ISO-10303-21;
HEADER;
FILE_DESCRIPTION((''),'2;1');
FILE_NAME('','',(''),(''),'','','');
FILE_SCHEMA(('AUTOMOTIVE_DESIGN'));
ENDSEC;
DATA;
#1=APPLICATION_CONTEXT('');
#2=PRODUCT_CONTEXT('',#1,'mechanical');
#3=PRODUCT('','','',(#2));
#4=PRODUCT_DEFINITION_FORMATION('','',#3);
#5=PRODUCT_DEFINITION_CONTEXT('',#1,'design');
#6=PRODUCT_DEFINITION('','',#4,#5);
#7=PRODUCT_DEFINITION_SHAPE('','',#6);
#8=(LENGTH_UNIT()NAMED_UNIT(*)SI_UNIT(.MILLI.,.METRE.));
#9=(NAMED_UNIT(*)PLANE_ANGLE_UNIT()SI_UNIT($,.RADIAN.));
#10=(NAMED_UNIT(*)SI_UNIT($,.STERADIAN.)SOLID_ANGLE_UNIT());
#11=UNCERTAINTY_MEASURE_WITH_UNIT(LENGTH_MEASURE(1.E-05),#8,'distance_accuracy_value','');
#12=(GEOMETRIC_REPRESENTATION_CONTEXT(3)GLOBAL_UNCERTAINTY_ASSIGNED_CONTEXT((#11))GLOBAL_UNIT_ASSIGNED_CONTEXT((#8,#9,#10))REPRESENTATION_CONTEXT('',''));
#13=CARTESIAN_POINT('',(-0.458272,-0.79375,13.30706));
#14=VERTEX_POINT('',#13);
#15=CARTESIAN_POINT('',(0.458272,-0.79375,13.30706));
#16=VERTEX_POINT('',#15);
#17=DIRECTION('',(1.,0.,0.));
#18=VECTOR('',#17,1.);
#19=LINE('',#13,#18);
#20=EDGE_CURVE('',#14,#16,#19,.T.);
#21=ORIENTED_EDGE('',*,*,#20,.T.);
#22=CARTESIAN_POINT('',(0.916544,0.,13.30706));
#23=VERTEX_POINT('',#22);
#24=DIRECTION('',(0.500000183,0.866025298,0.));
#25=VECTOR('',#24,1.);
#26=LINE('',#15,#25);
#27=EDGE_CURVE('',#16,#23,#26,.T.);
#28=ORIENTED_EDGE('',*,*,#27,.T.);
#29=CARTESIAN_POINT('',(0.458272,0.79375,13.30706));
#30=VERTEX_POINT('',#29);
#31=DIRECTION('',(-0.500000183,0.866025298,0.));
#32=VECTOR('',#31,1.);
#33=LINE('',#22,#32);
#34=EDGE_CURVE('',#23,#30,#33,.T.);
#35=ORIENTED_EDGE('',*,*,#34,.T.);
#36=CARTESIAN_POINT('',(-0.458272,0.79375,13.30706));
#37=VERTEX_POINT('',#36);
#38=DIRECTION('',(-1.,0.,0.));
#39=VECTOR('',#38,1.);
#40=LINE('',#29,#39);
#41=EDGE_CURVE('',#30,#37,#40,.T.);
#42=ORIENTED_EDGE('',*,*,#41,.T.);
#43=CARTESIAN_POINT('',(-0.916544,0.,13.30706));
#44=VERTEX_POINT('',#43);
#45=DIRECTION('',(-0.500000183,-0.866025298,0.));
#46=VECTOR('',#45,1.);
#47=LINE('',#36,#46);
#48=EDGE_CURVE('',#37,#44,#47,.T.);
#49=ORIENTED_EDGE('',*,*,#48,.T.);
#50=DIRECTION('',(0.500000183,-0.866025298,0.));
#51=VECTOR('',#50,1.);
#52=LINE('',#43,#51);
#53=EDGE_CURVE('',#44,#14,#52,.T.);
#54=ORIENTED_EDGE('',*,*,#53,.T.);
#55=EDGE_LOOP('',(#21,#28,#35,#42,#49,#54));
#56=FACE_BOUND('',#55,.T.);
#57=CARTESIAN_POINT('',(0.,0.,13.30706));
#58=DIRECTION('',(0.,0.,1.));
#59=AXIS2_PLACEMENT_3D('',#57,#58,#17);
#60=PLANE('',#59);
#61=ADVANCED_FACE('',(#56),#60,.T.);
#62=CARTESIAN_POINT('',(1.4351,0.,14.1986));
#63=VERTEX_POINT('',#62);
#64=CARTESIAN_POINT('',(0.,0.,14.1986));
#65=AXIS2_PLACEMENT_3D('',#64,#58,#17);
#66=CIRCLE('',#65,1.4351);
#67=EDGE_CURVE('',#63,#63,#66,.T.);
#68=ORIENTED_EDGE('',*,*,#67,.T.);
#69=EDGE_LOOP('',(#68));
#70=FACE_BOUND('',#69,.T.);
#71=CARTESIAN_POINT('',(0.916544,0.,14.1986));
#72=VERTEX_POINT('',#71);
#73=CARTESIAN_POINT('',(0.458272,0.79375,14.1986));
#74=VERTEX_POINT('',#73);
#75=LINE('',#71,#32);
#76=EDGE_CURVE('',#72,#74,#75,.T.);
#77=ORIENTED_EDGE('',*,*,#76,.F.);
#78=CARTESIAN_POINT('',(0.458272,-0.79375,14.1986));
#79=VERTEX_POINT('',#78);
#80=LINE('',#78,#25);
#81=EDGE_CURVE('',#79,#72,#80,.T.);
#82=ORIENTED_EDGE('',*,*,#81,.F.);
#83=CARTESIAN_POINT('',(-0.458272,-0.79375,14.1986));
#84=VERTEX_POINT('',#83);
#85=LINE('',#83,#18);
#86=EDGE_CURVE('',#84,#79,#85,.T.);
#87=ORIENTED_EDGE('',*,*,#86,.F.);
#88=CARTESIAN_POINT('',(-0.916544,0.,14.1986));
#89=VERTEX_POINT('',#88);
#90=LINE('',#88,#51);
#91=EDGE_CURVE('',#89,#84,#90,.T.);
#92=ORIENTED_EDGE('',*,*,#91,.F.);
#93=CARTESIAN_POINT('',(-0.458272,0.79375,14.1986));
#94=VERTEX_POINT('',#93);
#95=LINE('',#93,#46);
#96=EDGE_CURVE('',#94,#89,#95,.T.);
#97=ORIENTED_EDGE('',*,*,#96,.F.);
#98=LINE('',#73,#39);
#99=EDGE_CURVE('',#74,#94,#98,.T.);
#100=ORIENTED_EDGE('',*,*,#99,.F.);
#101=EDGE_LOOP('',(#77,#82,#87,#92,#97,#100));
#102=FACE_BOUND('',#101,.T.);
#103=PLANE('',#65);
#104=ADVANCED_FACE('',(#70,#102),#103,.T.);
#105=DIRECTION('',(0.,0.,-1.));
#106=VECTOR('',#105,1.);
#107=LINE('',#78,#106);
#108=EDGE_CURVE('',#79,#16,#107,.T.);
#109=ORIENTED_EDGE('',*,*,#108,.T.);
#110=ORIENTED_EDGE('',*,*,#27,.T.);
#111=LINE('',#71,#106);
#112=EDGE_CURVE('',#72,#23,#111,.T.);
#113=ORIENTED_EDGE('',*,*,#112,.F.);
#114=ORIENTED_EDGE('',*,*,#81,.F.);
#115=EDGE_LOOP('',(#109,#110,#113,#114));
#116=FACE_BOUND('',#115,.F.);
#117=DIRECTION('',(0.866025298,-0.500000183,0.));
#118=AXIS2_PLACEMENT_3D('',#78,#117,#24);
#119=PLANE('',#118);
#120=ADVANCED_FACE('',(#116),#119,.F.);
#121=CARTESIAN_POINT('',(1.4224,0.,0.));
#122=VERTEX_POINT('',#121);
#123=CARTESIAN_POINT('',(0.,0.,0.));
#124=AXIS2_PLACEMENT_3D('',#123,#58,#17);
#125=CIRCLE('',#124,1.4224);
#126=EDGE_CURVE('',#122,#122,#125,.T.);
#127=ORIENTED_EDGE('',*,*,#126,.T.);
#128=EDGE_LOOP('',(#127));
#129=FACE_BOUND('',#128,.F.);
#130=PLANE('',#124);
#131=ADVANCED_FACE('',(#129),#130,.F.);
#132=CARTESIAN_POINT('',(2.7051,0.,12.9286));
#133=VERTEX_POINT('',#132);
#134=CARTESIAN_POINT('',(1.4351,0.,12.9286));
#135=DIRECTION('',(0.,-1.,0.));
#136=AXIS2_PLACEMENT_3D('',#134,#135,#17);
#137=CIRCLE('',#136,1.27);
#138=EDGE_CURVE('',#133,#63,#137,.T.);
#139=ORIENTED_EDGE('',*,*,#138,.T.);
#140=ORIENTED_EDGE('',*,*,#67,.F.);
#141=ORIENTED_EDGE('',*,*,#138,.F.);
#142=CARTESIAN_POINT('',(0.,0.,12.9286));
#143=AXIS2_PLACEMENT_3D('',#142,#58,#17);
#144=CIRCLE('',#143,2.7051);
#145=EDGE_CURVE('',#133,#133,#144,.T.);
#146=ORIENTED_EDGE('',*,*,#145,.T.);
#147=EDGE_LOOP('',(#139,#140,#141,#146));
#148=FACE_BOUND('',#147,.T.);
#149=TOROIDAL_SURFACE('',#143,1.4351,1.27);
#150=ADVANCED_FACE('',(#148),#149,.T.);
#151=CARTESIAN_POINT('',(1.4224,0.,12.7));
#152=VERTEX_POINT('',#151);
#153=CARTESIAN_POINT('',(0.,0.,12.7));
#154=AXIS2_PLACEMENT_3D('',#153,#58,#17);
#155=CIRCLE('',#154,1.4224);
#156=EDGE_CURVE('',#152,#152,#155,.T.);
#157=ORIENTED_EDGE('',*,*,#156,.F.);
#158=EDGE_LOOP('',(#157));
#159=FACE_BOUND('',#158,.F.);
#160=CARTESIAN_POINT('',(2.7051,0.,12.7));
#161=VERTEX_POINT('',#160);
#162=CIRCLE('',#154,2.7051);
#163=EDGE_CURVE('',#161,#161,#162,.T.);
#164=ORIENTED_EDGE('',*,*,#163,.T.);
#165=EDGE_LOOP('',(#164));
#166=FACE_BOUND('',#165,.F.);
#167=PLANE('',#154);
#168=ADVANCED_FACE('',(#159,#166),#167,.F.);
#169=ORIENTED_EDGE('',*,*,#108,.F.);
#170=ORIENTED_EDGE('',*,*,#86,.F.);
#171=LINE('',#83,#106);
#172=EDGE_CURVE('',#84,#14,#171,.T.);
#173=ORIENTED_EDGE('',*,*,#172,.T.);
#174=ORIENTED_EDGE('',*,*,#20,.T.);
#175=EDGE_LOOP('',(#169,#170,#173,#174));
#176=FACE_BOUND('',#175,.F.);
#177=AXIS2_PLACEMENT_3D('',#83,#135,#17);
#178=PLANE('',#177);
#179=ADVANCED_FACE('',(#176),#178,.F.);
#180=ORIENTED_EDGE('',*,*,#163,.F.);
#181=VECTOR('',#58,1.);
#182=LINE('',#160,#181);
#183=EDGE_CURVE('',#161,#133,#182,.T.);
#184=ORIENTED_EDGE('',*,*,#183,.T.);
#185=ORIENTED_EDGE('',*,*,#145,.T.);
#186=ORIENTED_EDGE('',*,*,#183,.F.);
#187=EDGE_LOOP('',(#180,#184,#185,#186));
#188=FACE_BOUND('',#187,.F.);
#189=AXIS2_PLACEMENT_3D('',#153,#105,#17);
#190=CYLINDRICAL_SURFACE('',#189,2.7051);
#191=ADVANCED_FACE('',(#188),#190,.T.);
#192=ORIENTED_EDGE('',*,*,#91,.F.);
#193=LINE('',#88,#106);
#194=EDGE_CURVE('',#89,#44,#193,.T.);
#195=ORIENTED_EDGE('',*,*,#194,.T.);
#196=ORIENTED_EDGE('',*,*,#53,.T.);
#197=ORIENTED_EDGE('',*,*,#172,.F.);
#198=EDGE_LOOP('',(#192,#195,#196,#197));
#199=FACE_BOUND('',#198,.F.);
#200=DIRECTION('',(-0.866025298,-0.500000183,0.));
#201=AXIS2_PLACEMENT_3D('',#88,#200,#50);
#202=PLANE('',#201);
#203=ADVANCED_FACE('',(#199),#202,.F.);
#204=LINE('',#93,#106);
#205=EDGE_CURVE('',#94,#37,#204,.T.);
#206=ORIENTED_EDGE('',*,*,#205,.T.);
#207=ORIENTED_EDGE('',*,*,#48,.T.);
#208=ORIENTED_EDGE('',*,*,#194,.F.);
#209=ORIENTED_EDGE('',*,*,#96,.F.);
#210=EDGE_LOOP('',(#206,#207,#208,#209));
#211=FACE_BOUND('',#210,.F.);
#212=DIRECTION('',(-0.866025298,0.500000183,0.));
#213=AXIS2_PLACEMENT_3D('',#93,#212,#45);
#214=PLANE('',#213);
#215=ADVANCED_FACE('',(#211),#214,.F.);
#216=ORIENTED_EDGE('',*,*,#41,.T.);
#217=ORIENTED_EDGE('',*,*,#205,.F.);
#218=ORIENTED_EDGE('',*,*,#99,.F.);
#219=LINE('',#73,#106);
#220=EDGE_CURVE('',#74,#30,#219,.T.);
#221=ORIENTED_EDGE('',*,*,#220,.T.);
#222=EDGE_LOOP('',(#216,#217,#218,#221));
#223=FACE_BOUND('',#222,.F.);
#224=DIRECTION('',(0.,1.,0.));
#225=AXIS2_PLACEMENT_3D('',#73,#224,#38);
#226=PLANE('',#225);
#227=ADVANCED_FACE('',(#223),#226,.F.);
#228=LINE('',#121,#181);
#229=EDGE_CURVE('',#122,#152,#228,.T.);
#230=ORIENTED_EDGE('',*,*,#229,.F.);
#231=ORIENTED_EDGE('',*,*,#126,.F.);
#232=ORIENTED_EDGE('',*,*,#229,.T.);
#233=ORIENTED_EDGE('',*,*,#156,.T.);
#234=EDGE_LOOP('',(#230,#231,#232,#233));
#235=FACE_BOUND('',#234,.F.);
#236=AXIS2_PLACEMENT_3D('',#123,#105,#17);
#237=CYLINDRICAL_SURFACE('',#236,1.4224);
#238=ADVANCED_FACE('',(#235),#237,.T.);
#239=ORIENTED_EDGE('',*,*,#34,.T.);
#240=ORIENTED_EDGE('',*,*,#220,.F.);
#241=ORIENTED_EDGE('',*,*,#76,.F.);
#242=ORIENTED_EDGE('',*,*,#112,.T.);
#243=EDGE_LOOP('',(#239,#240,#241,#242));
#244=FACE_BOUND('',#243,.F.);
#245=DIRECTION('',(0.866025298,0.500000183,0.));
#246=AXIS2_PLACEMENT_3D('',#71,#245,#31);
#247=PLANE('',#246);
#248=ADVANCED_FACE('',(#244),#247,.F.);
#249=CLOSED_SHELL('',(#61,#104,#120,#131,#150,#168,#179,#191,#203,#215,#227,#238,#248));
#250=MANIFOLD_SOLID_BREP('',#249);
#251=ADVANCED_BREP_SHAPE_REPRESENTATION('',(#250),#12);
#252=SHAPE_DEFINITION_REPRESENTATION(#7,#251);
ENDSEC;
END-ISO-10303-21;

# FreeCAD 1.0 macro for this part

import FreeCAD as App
import Part
import Sketcher
from FreeCAD import Vector
Q = App.Units.Quantity


def edges_at(feature, points):
    """Names of the edges that pass closest to the given points."""
    edges = feature.Shape.Edges
    near = lambda p: min(range(len(edges)), key=lambda i: edges[i].distToShape(Part.Vertex(*p))[0])
    return sorted({f"Edge{near(p) + 1}" for p in points})

doc = App.newDocument("Part")
body = doc.addObject("PartDesign::Body", "Body")

# Sketch on XY plane
sketch1 = doc.addObject("Sketcher::SketchObject", "Sketch")
body.addObject(sketch1)
sketch1.AttachmentSupport = (doc.XY_Plane, [""])
sketch1.MapMode = "FlatFace"
sketch1.addGeometry(Part.Circle(Vector(0, 0, 0), Vector(0, 0, 1), 1.4224), False)
sketch1.addConstraint(Sketcher.Constraint("Coincident", 0, 3, -1, 1))
sketch1.addConstraint(Sketcher.Constraint("Diameter", 0, Q("0.112 in")))
pad1 = doc.addObject("PartDesign::Pad", "Pad")
body.addObject(pad1)
pad1.Profile = sketch1
pad1.Length = Q("0.5 in")

# Sketch on XY plane
sketch2 = doc.addObject("Sketcher::SketchObject", "Sketch001")
body.addObject(sketch2)
sketch2.AttachmentSupport = (doc.XY_Plane, [""])
sketch2.MapMode = "FlatFace"
sketch2.AttachmentOffset = App.Placement(Vector(0, 0, 0.5 * 25.4), App.Rotation())
sketch2.addGeometry(Part.Circle(Vector(0, 0, 0), Vector(0, 0, 1), 2.7051), False)
sketch2.addConstraint(Sketcher.Constraint("Coincident", 0, 3, -1, 1))
sketch2.addConstraint(Sketcher.Constraint("Diameter", 0, Q("0.213 in")))
pad2 = doc.addObject("PartDesign::Pad", "Pad001")
body.addObject(pad2)
pad2.Profile = sketch2
pad2.Length = Q("0.059 in")
doc.recompute()

fillet = doc.addObject("PartDesign::Fillet", "Fillet")
body.addObject(fillet)
fillet.Base = (pad2, edges_at(pad2, [(-2.705, 0, 14.199)]))
fillet.Radius = Q("0.05 in")

# Sketch on XY plane
sketch3 = doc.addObject("Sketcher::SketchObject", "Sketch002")
body.addObject(sketch3)
sketch3.AttachmentSupport = (doc.XY_Plane, [""])
sketch3.MapMode = "FlatFace"
sketch3.AttachmentOffset = App.Placement(Vector(0, 0, 0.559 * 25.4), App.Rotation())
sketch3.addGeometry(Part.LineSegment(Vector(0.458272, -0.79375, 0), Vector(0.916544, 0, 0)), False)
sketch3.addGeometry(Part.LineSegment(Vector(0.916544, 0, 0), Vector(0.458272, 0.79375, 0)), False)
sketch3.addGeometry(Part.LineSegment(Vector(0.458272, 0.79375, 0), Vector(-0.458272, 0.79375, 0)), False)
sketch3.addGeometry(Part.LineSegment(Vector(-0.458272, 0.79375, 0), Vector(-0.916544, 0, 0)), False)
sketch3.addGeometry(Part.LineSegment(Vector(-0.916544, 0, 0), Vector(-0.458272, -0.79375, 0)), False)
sketch3.addGeometry(Part.LineSegment(Vector(-0.458272, -0.79375, 0), Vector(0.458272, -0.79375, 0)), False)
sketch3.addConstraint(Sketcher.Constraint("Coincident", 0, 2, 1, 1))
sketch3.addConstraint(Sketcher.Constraint("Coincident", 1, 2, 2, 1))
sketch3.addConstraint(Sketcher.Constraint("Coincident", 2, 2, 3, 1))
sketch3.addConstraint(Sketcher.Constraint("Coincident", 3, 2, 4, 1))
sketch3.addConstraint(Sketcher.Constraint("Coincident", 4, 2, 5, 1))
sketch3.addConstraint(Sketcher.Constraint("Coincident", 5, 2, 0, 1))
sketch3.addConstraint(Sketcher.Constraint("Horizontal", 2))
sketch3.addConstraint(Sketcher.Constraint("Horizontal", 5))
sketch3.addConstraint(Sketcher.Constraint("Symmetric", 0, 2, 3, 2, -1, 1))
sketch3.addConstraint(Sketcher.Constraint("Symmetric", 1, 2, 4, 2, -1, 1))
sketch3.addConstraint(Sketcher.Constraint("PointOnObject", 0, 2, -1))
sketch3.addConstraint(Sketcher.Constraint("Parallel", 0, 3))
sketch3.addConstraint(Sketcher.Constraint("Vertical", 2, 2, 4, 2))
sketch3.addConstraint(Sketcher.Constraint("Angle", 0, Q("59.999988 deg")))
sketch3.addConstraint(Sketcher.Constraint("DistanceY", -1, 1, 1, 2, Q("0.03125 in")))
sketch3.addConstraint(Sketcher.Constraint("DistanceX", 2, 2, 2, 1, Q("0.916544 mm")))
pocket1 = doc.addObject("PartDesign::Pocket", "Pocket")
body.addObject(pocket1)
pocket1.Profile = sketch3
pocket1.Length = Q("0.0351 in")

doc.recompute()
